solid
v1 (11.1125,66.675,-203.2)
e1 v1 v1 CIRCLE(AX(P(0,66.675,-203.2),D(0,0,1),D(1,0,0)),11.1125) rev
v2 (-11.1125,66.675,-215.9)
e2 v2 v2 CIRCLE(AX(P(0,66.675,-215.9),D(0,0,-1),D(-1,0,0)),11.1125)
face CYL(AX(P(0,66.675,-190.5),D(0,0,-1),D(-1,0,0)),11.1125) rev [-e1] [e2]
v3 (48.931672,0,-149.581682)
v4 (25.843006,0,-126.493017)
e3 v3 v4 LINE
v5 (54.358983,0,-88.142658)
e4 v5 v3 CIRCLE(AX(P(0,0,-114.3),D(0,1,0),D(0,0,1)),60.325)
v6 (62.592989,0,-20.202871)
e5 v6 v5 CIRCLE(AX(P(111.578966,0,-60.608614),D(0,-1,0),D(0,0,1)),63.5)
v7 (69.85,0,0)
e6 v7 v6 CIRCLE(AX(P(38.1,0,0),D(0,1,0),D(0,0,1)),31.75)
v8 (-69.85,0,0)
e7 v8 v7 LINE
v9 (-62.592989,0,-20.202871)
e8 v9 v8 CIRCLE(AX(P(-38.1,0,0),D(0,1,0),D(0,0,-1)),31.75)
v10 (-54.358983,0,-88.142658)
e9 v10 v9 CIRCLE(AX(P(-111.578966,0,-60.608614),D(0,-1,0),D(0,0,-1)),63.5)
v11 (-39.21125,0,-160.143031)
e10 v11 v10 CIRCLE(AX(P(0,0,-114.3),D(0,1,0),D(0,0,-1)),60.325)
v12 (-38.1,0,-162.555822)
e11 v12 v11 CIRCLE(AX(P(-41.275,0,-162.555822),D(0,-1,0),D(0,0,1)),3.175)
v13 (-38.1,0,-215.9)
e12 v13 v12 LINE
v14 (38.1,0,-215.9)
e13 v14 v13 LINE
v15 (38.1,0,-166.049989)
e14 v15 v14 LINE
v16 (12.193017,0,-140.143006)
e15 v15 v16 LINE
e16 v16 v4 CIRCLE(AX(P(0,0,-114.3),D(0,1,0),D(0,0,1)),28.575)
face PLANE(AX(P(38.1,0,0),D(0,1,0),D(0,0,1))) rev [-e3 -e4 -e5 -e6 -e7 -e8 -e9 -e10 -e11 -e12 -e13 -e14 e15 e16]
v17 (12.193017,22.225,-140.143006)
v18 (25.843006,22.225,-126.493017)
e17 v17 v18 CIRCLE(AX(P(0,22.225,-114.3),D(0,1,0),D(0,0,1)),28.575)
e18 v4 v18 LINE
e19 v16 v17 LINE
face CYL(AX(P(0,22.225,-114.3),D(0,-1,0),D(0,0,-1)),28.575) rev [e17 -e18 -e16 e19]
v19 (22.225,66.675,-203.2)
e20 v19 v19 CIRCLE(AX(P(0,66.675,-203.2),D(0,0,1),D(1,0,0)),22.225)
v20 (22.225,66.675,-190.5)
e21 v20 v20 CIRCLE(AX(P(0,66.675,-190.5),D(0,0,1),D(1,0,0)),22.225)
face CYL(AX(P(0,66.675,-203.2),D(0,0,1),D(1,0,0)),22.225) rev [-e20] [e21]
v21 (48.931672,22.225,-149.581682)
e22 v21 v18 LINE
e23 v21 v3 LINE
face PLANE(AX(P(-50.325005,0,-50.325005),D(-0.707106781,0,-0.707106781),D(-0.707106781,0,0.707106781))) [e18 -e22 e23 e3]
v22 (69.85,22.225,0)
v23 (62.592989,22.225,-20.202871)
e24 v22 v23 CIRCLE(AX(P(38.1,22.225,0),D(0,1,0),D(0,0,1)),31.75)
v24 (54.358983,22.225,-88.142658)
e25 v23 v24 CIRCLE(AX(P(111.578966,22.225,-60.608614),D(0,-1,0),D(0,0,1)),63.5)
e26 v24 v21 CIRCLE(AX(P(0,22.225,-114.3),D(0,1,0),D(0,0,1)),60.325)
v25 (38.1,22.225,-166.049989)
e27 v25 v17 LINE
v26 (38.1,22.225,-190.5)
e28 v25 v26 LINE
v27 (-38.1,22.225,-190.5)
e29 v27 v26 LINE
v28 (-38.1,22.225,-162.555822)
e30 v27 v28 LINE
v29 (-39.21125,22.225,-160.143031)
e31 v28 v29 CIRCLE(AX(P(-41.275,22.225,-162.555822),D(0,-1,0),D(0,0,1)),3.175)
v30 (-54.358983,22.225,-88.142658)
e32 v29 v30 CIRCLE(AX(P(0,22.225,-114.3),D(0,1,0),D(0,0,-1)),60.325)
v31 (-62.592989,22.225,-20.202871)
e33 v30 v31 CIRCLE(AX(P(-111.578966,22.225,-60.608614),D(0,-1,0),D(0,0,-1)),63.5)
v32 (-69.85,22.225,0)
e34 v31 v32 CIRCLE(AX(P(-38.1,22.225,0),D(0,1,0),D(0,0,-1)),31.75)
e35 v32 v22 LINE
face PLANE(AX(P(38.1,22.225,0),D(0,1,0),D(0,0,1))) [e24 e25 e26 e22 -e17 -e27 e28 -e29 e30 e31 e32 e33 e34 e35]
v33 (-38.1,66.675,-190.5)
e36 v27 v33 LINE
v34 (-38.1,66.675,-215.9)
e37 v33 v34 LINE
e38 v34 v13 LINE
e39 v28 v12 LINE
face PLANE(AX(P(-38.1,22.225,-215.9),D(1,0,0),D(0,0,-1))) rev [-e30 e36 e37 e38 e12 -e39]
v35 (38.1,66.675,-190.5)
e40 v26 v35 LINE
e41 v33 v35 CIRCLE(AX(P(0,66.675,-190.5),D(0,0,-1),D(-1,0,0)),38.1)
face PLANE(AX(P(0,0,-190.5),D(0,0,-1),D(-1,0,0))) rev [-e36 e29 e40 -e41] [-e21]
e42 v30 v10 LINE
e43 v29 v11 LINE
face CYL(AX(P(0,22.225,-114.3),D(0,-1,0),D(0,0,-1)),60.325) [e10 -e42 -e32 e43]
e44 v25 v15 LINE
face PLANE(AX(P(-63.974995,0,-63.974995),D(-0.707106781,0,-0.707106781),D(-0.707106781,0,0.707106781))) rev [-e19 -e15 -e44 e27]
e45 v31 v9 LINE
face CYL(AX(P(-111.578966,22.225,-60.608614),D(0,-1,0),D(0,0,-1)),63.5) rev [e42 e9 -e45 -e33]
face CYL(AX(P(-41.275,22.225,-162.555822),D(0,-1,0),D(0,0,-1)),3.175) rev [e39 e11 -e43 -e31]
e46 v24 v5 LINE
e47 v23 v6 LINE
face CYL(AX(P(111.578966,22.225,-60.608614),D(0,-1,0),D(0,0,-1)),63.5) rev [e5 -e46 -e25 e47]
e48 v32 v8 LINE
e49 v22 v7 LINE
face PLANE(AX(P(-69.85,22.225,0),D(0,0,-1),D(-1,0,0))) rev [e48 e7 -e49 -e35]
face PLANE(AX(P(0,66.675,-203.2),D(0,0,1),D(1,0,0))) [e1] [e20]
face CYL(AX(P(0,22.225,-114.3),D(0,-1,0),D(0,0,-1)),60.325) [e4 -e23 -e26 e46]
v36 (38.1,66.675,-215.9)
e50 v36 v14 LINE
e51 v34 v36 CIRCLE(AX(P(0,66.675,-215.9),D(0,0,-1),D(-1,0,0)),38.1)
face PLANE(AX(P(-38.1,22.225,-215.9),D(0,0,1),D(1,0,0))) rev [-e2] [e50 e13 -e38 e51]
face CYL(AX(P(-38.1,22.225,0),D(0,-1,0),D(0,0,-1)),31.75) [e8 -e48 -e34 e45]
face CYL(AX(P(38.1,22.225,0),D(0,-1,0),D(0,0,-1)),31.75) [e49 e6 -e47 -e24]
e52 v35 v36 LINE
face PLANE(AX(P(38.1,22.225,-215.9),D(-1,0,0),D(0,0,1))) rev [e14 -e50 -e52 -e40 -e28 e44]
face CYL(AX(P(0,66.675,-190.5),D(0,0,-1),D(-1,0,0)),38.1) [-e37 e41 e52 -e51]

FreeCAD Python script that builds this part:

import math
import FreeCAD as App
import Part
import Sketcher
Q = App.Units.Quantity

doc = App.newDocument("Part")
body = doc.addObject("PartDesign::Body", "Body")

sketch1 = body.newObject("Sketcher::SketchObject", "Sketch")
sketch1.AttachmentSupport = (doc.getObject("XZ_Plane"), [""])
sketch1.MapMode = "FlatFace"
sketch1.addGeometry(Part.LineSegment(App.Vector(-69.8, 0, 0), App.Vector(69.8, 0, 0)), False)
sketch1.addGeometry(Part.ArcOfCircle(Part.Circle(App.Vector(38.1, 0, 0), App.Vector(0, 0, 1), 31.8), math.radians(-40), math.radians(0)), False)
sketch1.addGeometry(Part.ArcOfCircle(Part.Circle(App.Vector(111.6, -60.6, 0), App.Vector(0, 0, 1), 63.5), math.radians(140), math.radians(206)), False)
sketch1.addGeometry(Part.ArcOfCircle(Part.Circle(App.Vector(0, -114.3, 0), App.Vector(0, 0, 1), 60.3), math.radians(-49), math.radians(26)), False)
sketch1.addGeometry(Part.ArcOfCircle(Part.Circle(App.Vector(41.3, -162.6, 0), App.Vector(0, 0, 1), 3.2), math.radians(131), math.radians(180)), False)
sketch1.addGeometry(Part.LineSegment(App.Vector(38.1, -162.6, 0), App.Vector(38.1, -215.9, 0)), False)
sketch1.addGeometry(Part.LineSegment(App.Vector(38.1, -215.9, 0), App.Vector(-38.1, -215.9, 0)), False)
sketch1.addGeometry(Part.LineSegment(App.Vector(-38.1, -215.9, 0), App.Vector(-38.1, -162.6, 0)), False)
sketch1.addGeometry(Part.ArcOfCircle(Part.Circle(App.Vector(-41.3, -162.6, 0), App.Vector(0, 0, 1), 3.2), math.radians(0), math.radians(49)), False)
sketch1.addGeometry(Part.ArcOfCircle(Part.Circle(App.Vector(0, -114.3, 0), App.Vector(0, 0, 1), 60.3), math.radians(154), math.radians(229)), False)
sketch1.addGeometry(Part.ArcOfCircle(Part.Circle(App.Vector(-111.6, -60.6, 0), App.Vector(0, 0, 1), 63.5), math.radians(-26), math.radians(40)), False)
sketch1.addGeometry(Part.ArcOfCircle(Part.Circle(App.Vector(-38.1, 0, 0), App.Vector(0, 0, 1), 31.8), math.radians(180), math.radians(220)), False)
sketch1.addGeometry(Part.Circle(App.Vector(0, -114.3, 0), App.Vector(0, 0, 1), 28.6), False)
sketch1.addConstraint(Sketcher.Constraint("Coincident", 0, 2, 1, 2))
sketch1.addConstraint(Sketcher.Constraint("Tangent", 1, 1, 2, 1))
sketch1.addConstraint(Sketcher.Constraint("Tangent", 2, 2, 3, 2))
sketch1.addConstraint(Sketcher.Constraint("Tangent", 3, 1, 4, 1))
sketch1.addConstraint(Sketcher.Constraint("Tangent", 4, 2, 5, 1))
sketch1.addConstraint(Sketcher.Constraint("Coincident", 5, 2, 6, 1))
sketch1.addConstraint(Sketcher.Constraint("Coincident", 6, 2, 7, 1))
sketch1.addConstraint(Sketcher.Constraint("Tangent", 7, 2, 8, 1))
sketch1.addConstraint(Sketcher.Constraint("Tangent", 8, 2, 9, 2))
sketch1.addConstraint(Sketcher.Constraint("Tangent", 9, 1, 10, 1))
sketch1.addConstraint(Sketcher.Constraint("Tangent", 10, 2, 11, 2))
sketch1.addConstraint(Sketcher.Constraint("Coincident", 11, 1, 0, 1))
sketch1.addConstraint(Sketcher.Constraint("Horizontal", 0))
sketch1.addConstraint(Sketcher.Constraint("Vertical", 5))
sketch1.addConstraint(Sketcher.Constraint("Horizontal", 6))
sketch1.addConstraint(Sketcher.Constraint("Vertical", 7))
sketch1.addConstraint(Sketcher.Constraint("Coincident", 9, 3, 3, 3))
sketch1.addConstraint(Sketcher.Constraint("Coincident", 12, 3, 3, 3))
sketch1.addConstraint(Sketcher.Constraint("Equal", 4, 8))
sketch1.addConstraint(Sketcher.Constraint("Equal", 3, 9))
sketch1.addConstraint(Sketcher.Constraint("Equal", 2, 10))
sketch1.addConstraint(Sketcher.Constraint("Equal", 1, 11))
sketch1.addConstraint(Sketcher.Constraint("Symmetric", 1, 3, 11, 3, -1, 1))
sketch1.addConstraint(Sketcher.Constraint("Symmetric", 4, 3, 8, 3, -2))
sketch1.addConstraint(Sketcher.Constraint("PointOnObject", 1, 3, -1))
sketch1.addConstraint(Sketcher.Constraint("PointOnObject", 0, 2, -1))
sketch1.addConstraint(Sketcher.Constraint("Vertical", 1, 3, 4, 2))
sketch1.addConstraint(Sketcher.Constraint("Radius", 2, Q("2.5 in")))
sketch1.addConstraint(Sketcher.Constraint("Diameter", 12, Q("2.25 in")))
sketch1.addConstraint(Sketcher.Constraint("DistanceX", 6, 2, 6, 1, Q("3 in")))
sketch1.addConstraint(Sketcher.Constraint("Radius", 1, Q("1.25 in")))
sketch1.addConstraint(Sketcher.Constraint("Radius", 3, Q("2.375 in")))
sketch1.addConstraint(Sketcher.Constraint("Radius", 4, Q("0.125 in")))
sketch1.addConstraint(Sketcher.Constraint("DistanceY", 5, 2, 3, 3, Q("4 in")))
sketch1.addConstraint(Sketcher.Constraint("DistanceY", 3, 3, -1, 1, Q("4.5 in")))
pad1 = body.newObject("PartDesign::Pad", "Pad")
pad1.Profile = sketch1
pad1.Length = Q("0.875 in")
pad1.Reversed = True

sketch2 = body.newObject("Sketcher::SketchObject", "Sketch001")
sketch2.AttachmentSupport = (doc.getObject("XY_Plane"), [""])
sketch2.MapMode = "FlatFace"
sketch2.AttachmentOffset = App.Placement(App.Vector(0, 0, -8.5 * 25.4), App.Rotation())
sketch2.addGeometry(Part.LineSegment(App.Vector(38, 22, 0), App.Vector(-38, 22, 0)), False)
sketch2.addGeometry(Part.LineSegment(App.Vector(-38, 22, 0), App.Vector(-38, 67, 0)), False)
sketch2.addGeometry(Part.ArcOfCircle(Part.Circle(App.Vector(0, 67, 0), App.Vector(0, 0, 1), 38), math.radians(0), math.radians(180)), False)
sketch2.addGeometry(Part.LineSegment(App.Vector(38, 67, 0), App.Vector(38, 22, 0)), False)
sketch2.addGeometry(Part.Circle(App.Vector(0, 67, 0), App.Vector(0, 0, 1), 11), False)
sketch2.addConstraint(Sketcher.Constraint("Coincident", 0, 2, 1, 1))
sketch2.addConstraint(Sketcher.Constraint("Tangent", 1, 2, 2, 2))
sketch2.addConstraint(Sketcher.Constraint("Tangent", 2, 1, 3, 1))
sketch2.addConstraint(Sketcher.Constraint("Coincident", 3, 2, 0, 1))
sketch2.addConstraint(Sketcher.Constraint("Horizontal", 0))
sketch2.addConstraint(Sketcher.Constraint("Vertical", 1))
sketch2.addConstraint(Sketcher.Constraint("Vertical", 3))
sketch2.addConstraint(Sketcher.Constraint("Coincident", 4, 3, 2, 3))
sketch2.addConstraint(Sketcher.Constraint("PointOnObject", 2, 3, -2))
sketch2.addConstraint(Sketcher.Constraint("Radius", 2, Q("1.5 in")))
sketch2.addConstraint(Sketcher.Constraint("Diameter", 4, Q("0.875 in")))
sketch2.addConstraint(Sketcher.Constraint("DistanceY", 1, 1, 1, 2, Q("1.75 in")))
sketch2.addConstraint(Sketcher.Constraint("DistanceY", -1, 1, 2, 3, Q("2.625 in")))
pad2 = body.newObject("PartDesign::Pad", "Pad001")
pad2.Profile = sketch2
pad2.Length = Q("1 in")

sketch3 = body.newObject("Sketcher::SketchObject", "Sketch002")
sketch3.AttachmentSupport = (doc.getObject("XY_Plane"), [""])
sketch3.MapMode = "FlatFace"
sketch3.AttachmentOffset = App.Placement(App.Vector(0, 0, -7.5 * 25.4), App.Rotation())
sketch3.addGeometry(Part.Circle(App.Vector(0, 67, 0), App.Vector(0, 0, 1), 22), False)
sketch3.addConstraint(Sketcher.Constraint("PointOnObject", 0, 3, -2))
sketch3.addConstraint(Sketcher.Constraint("Diameter", 0, Q("1.75 in")))
sketch3.addConstraint(Sketcher.Constraint("DistanceY", -1, 1, 0, 3, Q("2.625 in")))
pocket1 = body.newObject("PartDesign::Pocket", "Pocket")
pocket1.Profile = sketch3
pocket1.Length = Q("0.5 in")

sketch4 = body.newObject("Sketcher::SketchObject", "Sketch003")
sketch4.AttachmentSupport = (doc.getObject("XZ_Plane"), [""])
sketch4.MapMode = "FlatFace"
sketch4.AttachmentOffset = App.Placement(App.Vector(0, 0, -0.875 * 25.4), App.Rotation())
sketch4.addGeometry(Part.LineSegment(App.Vector(45, -173, 0), App.Vector(12, -140, 0)), False)
sketch4.addGeometry(Part.ArcOfCircle(Part.Circle(App.Vector(0, -114, 0), App.Vector(0, 0, 1), 29), math.radians(-64.74), math.radians(-45)), False)
sketch4.addGeometry(Part.ArcOfCircle(Part.Circle(App.Vector(0, -114, 0), App.Vector(0, 0, 1), 29), math.radians(-45), math.radians(-25.26)), False)
sketch4.addGeometry(Part.LineSegment(App.Vector(26, -126, 0), App.Vector(58, -159, 0)), False)
sketch4.addGeometry(Part.LineSegment(App.Vector(58, -159, 0), App.Vector(45, -173, 0)), False)
sketch4.addConstraint(Sketcher.Constraint("Coincident", 0, 2, 1, 1))
sketch4.addConstraint(Sketcher.Constraint("Tangent", 1, 2, 2, 1))
sketch4.addConstraint(Sketcher.Constraint("Coincident", 2, 2, 3, 1))
sketch4.addConstraint(Sketcher.Constraint("Coincident", 3, 2, 4, 1))
sketch4.addConstraint(Sketcher.Constraint("Coincident", 4, 2, 0, 1))
sketch4.addConstraint(Sketcher.Constraint("Equal", 1, 2))
sketch4.addConstraint(Sketcher.Constraint("PointOnObject", 1, 3, -2))
sketch4.addConstraint(Sketcher.Constraint("Parallel", 0, 3))
sketch4.addConstraint(Sketcher.Constraint("Perpendicular", 3, 4))
sketch4.addConstraint(Sketcher.Constraint("Equal", 0, 3))
sketch4.addConstraint(Sketcher.Constraint("Angle", 0, Q("135 deg")))
sketch4.addConstraint(Sketcher.Constraint("Radius", 1, Q("1.125 in")))
sketch4.addConstraint(Sketcher.Constraint("DistanceY", 1, 3, -1, 1, Q("4.5 in")))
sketch4.addConstraint(Sketcher.Constraint("Distance", 4, Q("0.76 in")))
sketch4.addConstraint(Sketcher.Constraint("Distance", 0, Q("46.06838 mm")))
sketch4.addConstraint(Sketcher.Constraint("DistanceX", 0, 2, 1, 2, Q("8.012559 mm")))
pocket2 = body.newObject("PartDesign::Pocket", "Pocket001")
pocket2.Profile = sketch4
pocket2.Type = "ThroughAll"
pocket2.Reversed = True

doc.recompute()
